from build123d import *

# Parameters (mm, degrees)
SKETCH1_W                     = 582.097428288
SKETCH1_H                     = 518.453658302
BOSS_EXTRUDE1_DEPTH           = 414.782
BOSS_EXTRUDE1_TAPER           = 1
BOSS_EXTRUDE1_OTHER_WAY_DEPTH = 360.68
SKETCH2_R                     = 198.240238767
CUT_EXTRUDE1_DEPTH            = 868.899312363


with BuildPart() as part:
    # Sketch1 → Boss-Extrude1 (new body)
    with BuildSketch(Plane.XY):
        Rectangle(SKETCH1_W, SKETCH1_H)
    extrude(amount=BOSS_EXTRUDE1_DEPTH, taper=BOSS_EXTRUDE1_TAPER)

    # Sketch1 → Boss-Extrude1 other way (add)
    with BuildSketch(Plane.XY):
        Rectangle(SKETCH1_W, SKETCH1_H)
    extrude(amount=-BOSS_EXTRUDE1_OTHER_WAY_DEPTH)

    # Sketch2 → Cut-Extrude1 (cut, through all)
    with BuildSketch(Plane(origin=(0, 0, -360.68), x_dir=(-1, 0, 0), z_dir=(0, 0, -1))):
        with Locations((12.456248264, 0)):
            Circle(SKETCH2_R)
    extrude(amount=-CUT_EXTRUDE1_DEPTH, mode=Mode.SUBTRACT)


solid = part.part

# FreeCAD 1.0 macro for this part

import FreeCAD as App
import Part
import Sketcher
Q = App.Units.Quantity


def add_polygon(sketch, points):
    """Adds a closed chain of lines whose ends are joined by coincident constraints."""
    first, n = sketch.GeometryCount, len(points)
    for a, b in zip(points, points[1:] + points[:1]):
        sketch.addGeometry(Part.LineSegment(App.Vector(*a, 0), App.Vector(*b, 0)), False)
    for i in range(n):
        sketch.addConstraint(Sketcher.Constraint("Coincident", first + i, 2, first + (i + 1) % n, 1))

doc = App.newDocument("Part")
body = doc.addObject("PartDesign::Body", "Body")

# Sketch on XY plane
sketch1 = body.newObject("Sketcher::SketchObject", "Sketch")
sketch1.AttachmentSupport = (doc.getObject("XY_Plane"), [""])
sketch1.MapMode = "FlatFace"
add_polygon(sketch1, [(-291, 259), (-291, -259), (291, -259), (291, 259)])  # lines 0-3
sketch1.addConstraint([
    Sketcher.Constraint("Vertical", 0),
    Sketcher.Constraint("Horizontal", 1),
    Sketcher.Constraint("Vertical", 2),
    Sketcher.Constraint("Horizontal", 3),
    Sketcher.Constraint("Symmetric", 0, 2, 2, 2, -1, 1),
    Sketcher.Constraint("DistanceX", 1, 1, 1, 2, Q("582.097428 mm")),
    Sketcher.Constraint("DistanceY", 0, 2, 0, 1, Q("518.453658 mm")),
])
pad1 = body.newObject("PartDesign::Pad", "Pad")
pad1.Profile = sketch1
pad1.Length = Q("16.33 in")
pad1.TaperAngle = -1

# Sketch on XY plane
sketch2 = body.newObject("Sketcher::SketchObject", "Sketch001")
sketch2.AttachmentSupport = (doc.getObject("XY_Plane"), [""])
sketch2.MapMode = "FlatFace"
add_polygon(sketch2, [(-291, 259), (-291, -259), (291, -259), (291, 259)])  # lines 0-3
sketch2.addConstraint([
    Sketcher.Constraint("Vertical", 0),
    Sketcher.Constraint("Horizontal", 1),
    Sketcher.Constraint("Vertical", 2),
    Sketcher.Constraint("Horizontal", 3),
    Sketcher.Constraint("Symmetric", 0, 2, 2, 2, -1, 1),
    Sketcher.Constraint("DistanceX", 1, 1, 1, 2, Q("582.097428 mm")),
    Sketcher.Constraint("DistanceY", 0, 2, 0, 1, Q("518.453658 mm")),
])
pad2 = body.newObject("PartDesign::Pad", "Pad001")
pad2.Profile = sketch2
pad2.Length = Q("14.2 in")
pad2.Reversed = True

# Sketch on XY plane
sketch3 = body.newObject("Sketcher::SketchObject", "Sketch002")
sketch3.AttachmentSupport = (doc.getObject("XY_Plane"), [""])
sketch3.MapMode = "FlatFace"
sketch3.AttachmentOffset = App.Placement(App.Vector(0, 0, -14.2 * 25.4), App.Rotation())
sketch3.addGeometry(Part.Circle(App.Vector(-12, 0, 0), App.Vector(0, 0, 1), 198), False)
sketch3.addConstraint([
    Sketcher.Constraint("PointOnObject", 0, 3, -1),
    Sketcher.Constraint("Diameter", 0, Q("396.480478 mm")),
    Sketcher.Constraint("DistanceX", 0, 3, -1, 1, Q("12.456248 mm")),
])
pocket1 = body.newObject("PartDesign::Pocket", "Pocket")
pocket1.Profile = sketch3
pocket1.Type = "ThroughAll"
pocket1.Reversed = True

doc.recompute()
